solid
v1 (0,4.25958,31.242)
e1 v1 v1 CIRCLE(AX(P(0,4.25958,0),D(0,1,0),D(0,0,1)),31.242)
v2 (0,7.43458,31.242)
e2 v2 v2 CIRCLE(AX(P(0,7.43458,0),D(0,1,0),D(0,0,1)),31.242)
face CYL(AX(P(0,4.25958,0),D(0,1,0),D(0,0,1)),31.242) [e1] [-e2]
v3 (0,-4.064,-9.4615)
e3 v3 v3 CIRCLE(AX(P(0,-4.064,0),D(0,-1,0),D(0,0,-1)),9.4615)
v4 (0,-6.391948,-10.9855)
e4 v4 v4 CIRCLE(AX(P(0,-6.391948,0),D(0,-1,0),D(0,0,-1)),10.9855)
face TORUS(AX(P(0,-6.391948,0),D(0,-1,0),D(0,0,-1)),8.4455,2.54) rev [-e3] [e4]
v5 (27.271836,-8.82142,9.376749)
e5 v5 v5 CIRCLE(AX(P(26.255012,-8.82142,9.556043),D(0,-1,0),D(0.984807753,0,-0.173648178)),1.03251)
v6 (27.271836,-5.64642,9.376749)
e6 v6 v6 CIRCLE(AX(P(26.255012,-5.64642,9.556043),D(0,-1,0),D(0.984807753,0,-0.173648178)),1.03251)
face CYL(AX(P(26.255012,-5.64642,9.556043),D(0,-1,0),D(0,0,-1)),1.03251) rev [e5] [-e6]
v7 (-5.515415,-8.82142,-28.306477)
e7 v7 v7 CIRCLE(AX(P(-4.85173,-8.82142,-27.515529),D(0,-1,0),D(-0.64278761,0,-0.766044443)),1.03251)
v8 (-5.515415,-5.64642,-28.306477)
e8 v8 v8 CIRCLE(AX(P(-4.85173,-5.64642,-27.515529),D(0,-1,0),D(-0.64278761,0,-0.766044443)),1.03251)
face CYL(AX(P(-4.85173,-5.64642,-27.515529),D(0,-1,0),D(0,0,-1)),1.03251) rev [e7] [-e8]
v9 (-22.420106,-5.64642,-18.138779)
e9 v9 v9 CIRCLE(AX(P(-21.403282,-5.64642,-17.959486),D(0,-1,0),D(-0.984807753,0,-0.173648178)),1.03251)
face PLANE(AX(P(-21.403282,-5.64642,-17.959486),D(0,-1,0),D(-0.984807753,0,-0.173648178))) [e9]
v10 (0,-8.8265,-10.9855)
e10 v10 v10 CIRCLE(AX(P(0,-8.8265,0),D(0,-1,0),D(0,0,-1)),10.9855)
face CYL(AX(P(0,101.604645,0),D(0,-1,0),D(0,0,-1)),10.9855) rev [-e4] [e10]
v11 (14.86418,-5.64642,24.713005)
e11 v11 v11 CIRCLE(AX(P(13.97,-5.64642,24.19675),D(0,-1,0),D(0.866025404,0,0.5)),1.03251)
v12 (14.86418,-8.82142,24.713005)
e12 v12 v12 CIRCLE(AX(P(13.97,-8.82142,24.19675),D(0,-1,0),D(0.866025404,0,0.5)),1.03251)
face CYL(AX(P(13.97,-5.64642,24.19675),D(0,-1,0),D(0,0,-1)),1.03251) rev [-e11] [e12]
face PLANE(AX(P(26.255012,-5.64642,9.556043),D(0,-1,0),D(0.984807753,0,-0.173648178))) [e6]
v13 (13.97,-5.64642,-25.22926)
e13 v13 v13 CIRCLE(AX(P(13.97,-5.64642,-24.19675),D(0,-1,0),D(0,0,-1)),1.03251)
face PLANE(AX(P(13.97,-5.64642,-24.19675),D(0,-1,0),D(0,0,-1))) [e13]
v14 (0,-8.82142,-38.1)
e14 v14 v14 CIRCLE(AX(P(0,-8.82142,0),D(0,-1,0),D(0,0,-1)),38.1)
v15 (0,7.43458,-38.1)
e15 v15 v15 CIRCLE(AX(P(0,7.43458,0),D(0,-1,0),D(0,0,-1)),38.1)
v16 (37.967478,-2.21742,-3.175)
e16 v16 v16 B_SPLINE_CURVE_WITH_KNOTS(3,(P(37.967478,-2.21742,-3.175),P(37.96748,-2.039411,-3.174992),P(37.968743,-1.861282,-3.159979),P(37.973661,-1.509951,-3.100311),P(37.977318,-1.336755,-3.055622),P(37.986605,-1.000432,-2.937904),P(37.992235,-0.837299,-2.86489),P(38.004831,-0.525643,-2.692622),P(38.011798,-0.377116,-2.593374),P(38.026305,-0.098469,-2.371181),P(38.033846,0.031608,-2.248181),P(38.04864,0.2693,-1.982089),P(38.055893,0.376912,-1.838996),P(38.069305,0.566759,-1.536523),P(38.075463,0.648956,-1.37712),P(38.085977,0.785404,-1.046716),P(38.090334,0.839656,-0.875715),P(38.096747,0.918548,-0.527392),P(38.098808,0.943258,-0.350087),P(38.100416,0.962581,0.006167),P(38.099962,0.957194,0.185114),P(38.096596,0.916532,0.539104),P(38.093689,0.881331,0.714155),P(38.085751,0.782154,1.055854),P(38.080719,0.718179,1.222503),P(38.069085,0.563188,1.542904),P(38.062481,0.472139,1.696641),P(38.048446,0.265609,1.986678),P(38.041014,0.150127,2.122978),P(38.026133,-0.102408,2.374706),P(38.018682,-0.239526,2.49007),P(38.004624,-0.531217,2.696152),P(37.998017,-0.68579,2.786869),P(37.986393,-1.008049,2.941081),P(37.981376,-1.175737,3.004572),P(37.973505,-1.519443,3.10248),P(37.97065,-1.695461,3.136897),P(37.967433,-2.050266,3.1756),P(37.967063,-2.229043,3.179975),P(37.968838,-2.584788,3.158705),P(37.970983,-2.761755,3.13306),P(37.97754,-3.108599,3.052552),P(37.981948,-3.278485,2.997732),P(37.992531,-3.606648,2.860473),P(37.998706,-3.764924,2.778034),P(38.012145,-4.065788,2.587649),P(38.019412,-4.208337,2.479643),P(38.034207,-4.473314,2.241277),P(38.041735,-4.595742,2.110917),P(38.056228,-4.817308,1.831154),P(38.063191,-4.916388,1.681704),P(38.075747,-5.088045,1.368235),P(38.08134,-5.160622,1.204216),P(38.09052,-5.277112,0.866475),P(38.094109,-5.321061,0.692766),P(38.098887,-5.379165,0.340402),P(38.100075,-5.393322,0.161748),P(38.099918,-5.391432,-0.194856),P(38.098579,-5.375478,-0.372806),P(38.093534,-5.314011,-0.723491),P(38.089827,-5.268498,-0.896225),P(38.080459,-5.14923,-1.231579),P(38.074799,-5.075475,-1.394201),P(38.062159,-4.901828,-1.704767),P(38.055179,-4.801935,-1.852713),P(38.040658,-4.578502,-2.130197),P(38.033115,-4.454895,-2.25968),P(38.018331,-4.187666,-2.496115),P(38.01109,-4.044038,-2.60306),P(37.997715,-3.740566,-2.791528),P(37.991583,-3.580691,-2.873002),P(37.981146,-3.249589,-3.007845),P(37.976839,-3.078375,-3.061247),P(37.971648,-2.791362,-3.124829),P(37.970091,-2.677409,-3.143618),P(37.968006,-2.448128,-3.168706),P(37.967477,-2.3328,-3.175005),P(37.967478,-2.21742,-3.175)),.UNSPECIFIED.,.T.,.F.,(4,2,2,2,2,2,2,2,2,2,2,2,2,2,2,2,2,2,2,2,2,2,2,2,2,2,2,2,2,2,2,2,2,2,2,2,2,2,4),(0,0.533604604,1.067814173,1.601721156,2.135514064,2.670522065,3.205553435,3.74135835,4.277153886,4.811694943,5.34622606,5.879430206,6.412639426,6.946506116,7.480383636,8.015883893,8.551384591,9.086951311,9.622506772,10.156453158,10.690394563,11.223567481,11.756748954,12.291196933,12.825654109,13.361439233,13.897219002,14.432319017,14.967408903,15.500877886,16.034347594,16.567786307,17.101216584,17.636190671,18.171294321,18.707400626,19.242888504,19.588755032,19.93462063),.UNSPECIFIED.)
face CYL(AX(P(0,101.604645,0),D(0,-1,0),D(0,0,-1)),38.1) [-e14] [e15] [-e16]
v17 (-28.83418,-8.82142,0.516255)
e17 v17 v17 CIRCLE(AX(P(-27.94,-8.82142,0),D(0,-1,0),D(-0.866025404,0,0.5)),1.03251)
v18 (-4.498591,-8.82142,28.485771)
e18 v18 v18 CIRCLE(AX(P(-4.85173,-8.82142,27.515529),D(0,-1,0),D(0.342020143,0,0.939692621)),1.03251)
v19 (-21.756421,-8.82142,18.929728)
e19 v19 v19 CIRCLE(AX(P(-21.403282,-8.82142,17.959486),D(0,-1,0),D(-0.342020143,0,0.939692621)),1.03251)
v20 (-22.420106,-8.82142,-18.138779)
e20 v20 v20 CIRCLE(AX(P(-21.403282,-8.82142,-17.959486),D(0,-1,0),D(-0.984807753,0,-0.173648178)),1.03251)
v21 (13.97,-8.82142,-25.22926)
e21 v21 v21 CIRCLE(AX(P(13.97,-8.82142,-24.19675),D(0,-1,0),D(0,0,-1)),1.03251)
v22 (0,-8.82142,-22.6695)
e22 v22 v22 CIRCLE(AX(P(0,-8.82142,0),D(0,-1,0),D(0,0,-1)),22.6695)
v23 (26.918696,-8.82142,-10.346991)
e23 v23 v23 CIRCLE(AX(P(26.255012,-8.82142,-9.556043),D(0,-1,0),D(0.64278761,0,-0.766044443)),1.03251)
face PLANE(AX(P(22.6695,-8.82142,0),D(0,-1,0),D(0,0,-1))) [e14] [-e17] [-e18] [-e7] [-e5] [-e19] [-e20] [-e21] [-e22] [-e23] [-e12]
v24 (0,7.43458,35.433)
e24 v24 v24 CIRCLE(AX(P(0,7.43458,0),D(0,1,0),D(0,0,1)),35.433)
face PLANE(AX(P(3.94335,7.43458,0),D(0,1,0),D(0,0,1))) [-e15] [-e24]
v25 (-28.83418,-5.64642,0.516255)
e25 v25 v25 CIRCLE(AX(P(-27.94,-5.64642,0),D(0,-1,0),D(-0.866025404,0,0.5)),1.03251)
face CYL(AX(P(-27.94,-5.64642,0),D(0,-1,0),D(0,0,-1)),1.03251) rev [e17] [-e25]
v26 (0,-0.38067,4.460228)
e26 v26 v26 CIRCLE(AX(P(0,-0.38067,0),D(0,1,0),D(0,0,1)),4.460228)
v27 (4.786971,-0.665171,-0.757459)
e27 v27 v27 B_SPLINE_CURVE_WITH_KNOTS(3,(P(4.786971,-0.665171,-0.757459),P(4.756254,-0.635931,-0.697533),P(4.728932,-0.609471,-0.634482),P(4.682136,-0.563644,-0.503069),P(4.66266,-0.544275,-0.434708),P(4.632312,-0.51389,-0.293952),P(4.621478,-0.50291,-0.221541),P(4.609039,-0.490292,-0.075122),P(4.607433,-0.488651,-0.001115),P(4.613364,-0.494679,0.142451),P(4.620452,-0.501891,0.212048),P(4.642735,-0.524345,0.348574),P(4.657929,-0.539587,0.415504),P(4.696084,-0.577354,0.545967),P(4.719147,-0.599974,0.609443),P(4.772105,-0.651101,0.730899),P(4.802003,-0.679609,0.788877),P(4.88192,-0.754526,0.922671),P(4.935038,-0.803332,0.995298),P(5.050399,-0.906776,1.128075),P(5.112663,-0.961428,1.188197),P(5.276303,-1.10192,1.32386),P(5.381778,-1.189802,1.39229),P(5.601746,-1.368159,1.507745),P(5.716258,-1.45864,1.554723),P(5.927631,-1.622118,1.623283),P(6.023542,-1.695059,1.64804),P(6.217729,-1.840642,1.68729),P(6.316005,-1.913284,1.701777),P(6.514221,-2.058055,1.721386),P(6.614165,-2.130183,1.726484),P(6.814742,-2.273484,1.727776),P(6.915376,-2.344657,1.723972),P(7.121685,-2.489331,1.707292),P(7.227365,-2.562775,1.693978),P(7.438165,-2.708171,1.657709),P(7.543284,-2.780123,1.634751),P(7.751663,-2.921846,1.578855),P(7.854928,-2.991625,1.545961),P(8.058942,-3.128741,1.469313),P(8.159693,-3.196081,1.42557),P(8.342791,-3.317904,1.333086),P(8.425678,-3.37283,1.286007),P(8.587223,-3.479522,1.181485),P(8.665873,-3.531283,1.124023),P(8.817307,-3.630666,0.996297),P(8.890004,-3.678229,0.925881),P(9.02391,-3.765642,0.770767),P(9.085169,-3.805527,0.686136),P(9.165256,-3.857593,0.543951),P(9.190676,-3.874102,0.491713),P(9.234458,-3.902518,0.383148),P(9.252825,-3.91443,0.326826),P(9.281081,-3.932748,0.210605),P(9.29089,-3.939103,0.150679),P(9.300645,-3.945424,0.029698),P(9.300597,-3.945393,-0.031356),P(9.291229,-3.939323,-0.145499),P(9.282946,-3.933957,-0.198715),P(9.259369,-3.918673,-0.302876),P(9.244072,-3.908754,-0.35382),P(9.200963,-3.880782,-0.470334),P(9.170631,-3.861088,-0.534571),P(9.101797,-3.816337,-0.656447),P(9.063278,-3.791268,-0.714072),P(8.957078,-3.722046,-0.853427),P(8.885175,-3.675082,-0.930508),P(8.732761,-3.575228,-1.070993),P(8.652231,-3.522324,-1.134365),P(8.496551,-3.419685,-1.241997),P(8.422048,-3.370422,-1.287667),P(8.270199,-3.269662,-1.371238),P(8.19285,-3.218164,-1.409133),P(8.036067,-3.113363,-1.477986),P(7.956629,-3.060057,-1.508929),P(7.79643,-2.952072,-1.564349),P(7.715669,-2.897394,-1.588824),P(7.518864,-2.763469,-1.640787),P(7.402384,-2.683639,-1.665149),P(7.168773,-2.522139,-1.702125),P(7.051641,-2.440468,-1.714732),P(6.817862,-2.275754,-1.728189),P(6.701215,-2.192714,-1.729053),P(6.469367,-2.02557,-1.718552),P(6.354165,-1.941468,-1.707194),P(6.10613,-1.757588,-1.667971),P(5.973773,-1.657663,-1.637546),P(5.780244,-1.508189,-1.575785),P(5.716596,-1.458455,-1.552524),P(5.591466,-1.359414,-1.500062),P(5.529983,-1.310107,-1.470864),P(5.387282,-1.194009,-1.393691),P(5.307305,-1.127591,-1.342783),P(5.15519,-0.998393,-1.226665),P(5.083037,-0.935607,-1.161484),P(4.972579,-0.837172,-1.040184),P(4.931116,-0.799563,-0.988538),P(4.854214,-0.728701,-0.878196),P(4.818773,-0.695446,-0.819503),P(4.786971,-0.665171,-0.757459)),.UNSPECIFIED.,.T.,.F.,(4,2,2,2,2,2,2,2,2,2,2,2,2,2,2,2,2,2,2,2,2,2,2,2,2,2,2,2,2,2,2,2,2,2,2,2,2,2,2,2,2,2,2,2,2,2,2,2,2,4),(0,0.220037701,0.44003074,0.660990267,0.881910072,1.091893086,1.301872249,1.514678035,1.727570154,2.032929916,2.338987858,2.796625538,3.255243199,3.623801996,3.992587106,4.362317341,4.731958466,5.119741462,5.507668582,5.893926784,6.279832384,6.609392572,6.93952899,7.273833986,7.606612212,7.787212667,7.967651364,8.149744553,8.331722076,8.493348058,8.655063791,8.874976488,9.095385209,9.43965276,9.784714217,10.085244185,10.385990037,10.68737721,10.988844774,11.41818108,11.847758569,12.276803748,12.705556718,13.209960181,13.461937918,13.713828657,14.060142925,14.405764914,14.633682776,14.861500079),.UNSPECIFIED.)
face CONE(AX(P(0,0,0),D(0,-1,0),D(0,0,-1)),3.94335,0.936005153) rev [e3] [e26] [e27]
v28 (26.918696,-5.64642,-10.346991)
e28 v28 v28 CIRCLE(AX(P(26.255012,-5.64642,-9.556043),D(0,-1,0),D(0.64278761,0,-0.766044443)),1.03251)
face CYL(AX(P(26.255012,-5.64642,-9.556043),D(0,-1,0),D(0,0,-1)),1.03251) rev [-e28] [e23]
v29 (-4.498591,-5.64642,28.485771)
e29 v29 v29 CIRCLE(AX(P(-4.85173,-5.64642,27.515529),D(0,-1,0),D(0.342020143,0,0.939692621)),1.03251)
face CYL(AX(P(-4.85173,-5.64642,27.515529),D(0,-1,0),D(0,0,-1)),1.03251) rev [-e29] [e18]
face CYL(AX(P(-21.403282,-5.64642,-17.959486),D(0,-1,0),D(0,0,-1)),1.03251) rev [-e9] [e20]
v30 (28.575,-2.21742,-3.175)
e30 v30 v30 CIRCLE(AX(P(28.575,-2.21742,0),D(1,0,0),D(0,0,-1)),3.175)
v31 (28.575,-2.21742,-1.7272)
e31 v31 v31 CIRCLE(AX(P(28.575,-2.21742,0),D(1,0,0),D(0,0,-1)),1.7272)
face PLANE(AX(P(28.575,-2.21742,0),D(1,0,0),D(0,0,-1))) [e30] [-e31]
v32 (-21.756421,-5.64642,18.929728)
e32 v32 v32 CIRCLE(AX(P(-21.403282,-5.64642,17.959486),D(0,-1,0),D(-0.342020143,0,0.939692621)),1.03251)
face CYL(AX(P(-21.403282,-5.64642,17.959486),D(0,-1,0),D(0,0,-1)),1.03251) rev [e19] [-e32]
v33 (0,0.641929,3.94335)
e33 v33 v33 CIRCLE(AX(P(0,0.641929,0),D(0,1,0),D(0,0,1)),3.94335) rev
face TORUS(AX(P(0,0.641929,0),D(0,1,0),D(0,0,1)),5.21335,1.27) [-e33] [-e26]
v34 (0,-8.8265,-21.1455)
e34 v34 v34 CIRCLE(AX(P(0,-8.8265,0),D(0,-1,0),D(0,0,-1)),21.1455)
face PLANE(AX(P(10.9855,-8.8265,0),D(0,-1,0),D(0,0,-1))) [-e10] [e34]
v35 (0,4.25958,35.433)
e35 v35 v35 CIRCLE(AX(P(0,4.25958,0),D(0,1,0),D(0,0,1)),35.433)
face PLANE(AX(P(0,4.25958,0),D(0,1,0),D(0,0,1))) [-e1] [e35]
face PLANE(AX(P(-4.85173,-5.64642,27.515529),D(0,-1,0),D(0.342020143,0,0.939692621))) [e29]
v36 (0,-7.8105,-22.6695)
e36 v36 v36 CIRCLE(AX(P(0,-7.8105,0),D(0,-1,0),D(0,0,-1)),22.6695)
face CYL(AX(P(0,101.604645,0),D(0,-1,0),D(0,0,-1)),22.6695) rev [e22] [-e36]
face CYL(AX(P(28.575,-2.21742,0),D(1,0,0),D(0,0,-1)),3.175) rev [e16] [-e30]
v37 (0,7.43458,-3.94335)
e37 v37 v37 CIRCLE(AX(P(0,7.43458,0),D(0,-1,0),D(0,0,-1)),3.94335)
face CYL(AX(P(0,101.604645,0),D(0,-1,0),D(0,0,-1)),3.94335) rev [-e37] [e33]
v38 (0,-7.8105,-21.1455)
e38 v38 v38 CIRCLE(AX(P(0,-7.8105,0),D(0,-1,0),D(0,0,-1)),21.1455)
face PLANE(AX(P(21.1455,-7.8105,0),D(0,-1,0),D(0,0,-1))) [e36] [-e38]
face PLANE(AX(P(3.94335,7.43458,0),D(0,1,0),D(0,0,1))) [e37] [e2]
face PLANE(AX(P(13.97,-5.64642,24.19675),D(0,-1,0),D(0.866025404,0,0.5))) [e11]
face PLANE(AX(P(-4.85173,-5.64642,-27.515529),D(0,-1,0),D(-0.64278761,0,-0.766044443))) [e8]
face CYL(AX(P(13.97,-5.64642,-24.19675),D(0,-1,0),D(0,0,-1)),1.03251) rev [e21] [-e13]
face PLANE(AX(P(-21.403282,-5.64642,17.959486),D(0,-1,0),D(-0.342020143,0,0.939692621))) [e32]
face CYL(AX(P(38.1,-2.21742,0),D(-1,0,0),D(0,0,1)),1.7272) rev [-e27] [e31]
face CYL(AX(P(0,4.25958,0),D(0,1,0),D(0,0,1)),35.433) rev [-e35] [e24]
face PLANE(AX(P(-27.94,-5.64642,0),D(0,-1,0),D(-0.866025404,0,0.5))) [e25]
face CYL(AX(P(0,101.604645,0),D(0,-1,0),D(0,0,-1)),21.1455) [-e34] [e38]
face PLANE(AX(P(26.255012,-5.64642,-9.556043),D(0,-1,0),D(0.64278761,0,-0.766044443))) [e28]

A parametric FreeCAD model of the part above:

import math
import FreeCAD as App
import Part
import Sketcher
Q = App.Units.Quantity


def edges_at(feature, points):
    """Names of the edges that pass closest to the given points."""
    edges = feature.Shape.Edges
    near = lambda p: min(range(len(edges)), key=lambda i: edges[i].distToShape(Part.Vertex(*p))[0])
    return sorted({f"Edge{near(p) + 1}" for p in points})

doc = App.newDocument("Part")
body = doc.addObject("PartDesign::Body", "Body")

# Sketch on XY plane
sketch1 = doc.addObject("Sketcher::SketchObject", "Sketch")
body.addObject(sketch1)
sketch1.AttachmentSupport = (doc.XY_Plane, [""])
sketch1.MapMode = "FlatFace"
sketch1.addGeometry(Part.LineSegment(App.Vector(38.1, 7.4, 0), App.Vector(3.9, 7.4, 0)), False)
sketch1.addGeometry(Part.LineSegment(App.Vector(3.9, 7.4, 0), App.Vector(3.9, 0, 0)), False)
sketch1.addGeometry(Part.LineSegment(App.Vector(3.9, 0, 0), App.Vector(9.5, -4.1, 0)), False)
sketch1.addGeometry(Part.ArcOfCircle(Part.Circle(App.Vector(8.4, -6.4, 0), App.Vector(0, 0, 1), 2.5), math.radians(0), math.radians(66)), False)
sketch1.addGeometry(Part.LineSegment(App.Vector(11, -6.4, 0), App.Vector(11, -8.8, 0)), False)
sketch1.addGeometry(Part.LineSegment(App.Vector(11, -8.8, 0), App.Vector(21.1, -8.8, 0)), False)
sketch1.addGeometry(Part.LineSegment(App.Vector(21.1, -8.8, 0), App.Vector(21.1, -7.8, 0)), False)
sketch1.addGeometry(Part.LineSegment(App.Vector(21.1, -7.8, 0), App.Vector(22.7, -7.8, 0)), False)
sketch1.addGeometry(Part.LineSegment(App.Vector(22.7, -7.8, 0), App.Vector(22.7, -8.8, 0)), False)
sketch1.addGeometry(Part.LineSegment(App.Vector(22.7, -8.8, 0), App.Vector(38.1, -8.8, 0)), False)
sketch1.addGeometry(Part.LineSegment(App.Vector(38.1, -8.8, 0), App.Vector(38.1, 7.4, 0)), False)
sketch1.addConstraint(Sketcher.Constraint("Coincident", 0, 2, 1, 1))
sketch1.addConstraint(Sketcher.Constraint("Coincident", 1, 2, 2, 1))
sketch1.addConstraint(Sketcher.Constraint("Coincident", 2, 2, 3, 2))
sketch1.addConstraint(Sketcher.Constraint("Tangent", 3, 1, 4, 1))
sketch1.addConstraint(Sketcher.Constraint("Coincident", 4, 2, 5, 1))
sketch1.addConstraint(Sketcher.Constraint("Coincident", 5, 2, 6, 1))
sketch1.addConstraint(Sketcher.Constraint("Coincident", 6, 2, 7, 1))
sketch1.addConstraint(Sketcher.Constraint("Coincident", 7, 2, 8, 1))
sketch1.addConstraint(Sketcher.Constraint("Coincident", 8, 2, 9, 1))
sketch1.addConstraint(Sketcher.Constraint("Coincident", 9, 2, 10, 1))
sketch1.addConstraint(Sketcher.Constraint("Coincident", 10, 2, 0, 1))
sketch1.addConstraint(Sketcher.Constraint("Horizontal", 0))
sketch1.addConstraint(Sketcher.Constraint("Vertical", 1))
sketch1.addConstraint(Sketcher.Constraint("Vertical", 4))
sketch1.addConstraint(Sketcher.Constraint("Horizontal", 5))
sketch1.addConstraint(Sketcher.Constraint("Vertical", 6))
sketch1.addConstraint(Sketcher.Constraint("Horizontal", 7))
sketch1.addConstraint(Sketcher.Constraint("Vertical", 8))
sketch1.addConstraint(Sketcher.Constraint("Horizontal", 9))
sketch1.addConstraint(Sketcher.Constraint("Vertical", 10))
sketch1.addConstraint(Sketcher.Constraint("PointOnObject", 1, 2, -1))
sketch1.addConstraint(Sketcher.Constraint("Radius", 3, Q("0.1 in")))
sketch1.addConstraint(Sketcher.Constraint("DistanceX", 5, 1, 5, 2, Q("0.4 in")))
sketch1.addConstraint(Sketcher.Constraint("DistanceX", 7, 1, 7, 2, Q("0.06 in")))
sketch1.addConstraint(Sketcher.Constraint("DistanceY", 6, 1, 6, 2, Q("0.04 in")))
sketch1.addConstraint(Sketcher.Constraint("DistanceY", 10, 1, 10, 2, Q("0.64 in")))
sketch1.addConstraint(Sketcher.Constraint("DistanceX", -1, 1, 9, 2, Q("1.5 in")))
sketch1.addConstraint(Sketcher.Constraint("DistanceY", 2, 2, -1, 1, Q("0.16 in")))
sketch1.addConstraint(Sketcher.Constraint("DistanceX", 3, 3, 2, 2, Q("0.04 in")))
sketch1.addConstraint(Sketcher.Constraint("DistanceX", 9, 1, 9, 2, Q("0.6075 in")))
sketch1.addConstraint(Sketcher.Constraint("DistanceY", 1, 2, 1, 1, Q("0.2927 in")))
sketch1.addConstraint(Sketcher.Constraint("DistanceY", 8, 2, 8, 1, Q("0.0398 in")))
sketch1.addConstraint(Sketcher.Constraint("DistanceX", 0, 2, 0, 1, 34.15665))
revolution = doc.addObject("PartDesign::Revolution", "Revolution")
body.addObject(revolution)
revolution.Profile = sketch1
revolution.ReferenceAxis = (sketch1, ["V_Axis"])
revolution.Angle = 360

# Sketch on YZ plane
sketch2 = doc.addObject("Sketcher::SketchObject", "Sketch001")
body.addObject(sketch2)
sketch2.AttachmentSupport = (doc.YZ_Plane, [""])
sketch2.MapMode = "FlatFace"
sketch2.addGeometry(Part.Circle(App.Vector(-2.2, 0, 0), App.Vector(0, 0, 1), 1.7), False)
sketch2.addConstraint(Sketcher.Constraint("PointOnObject", 0, 3, -1))
sketch2.addConstraint(Sketcher.Constraint("Diameter", 0, Q("0.136 in")))
sketch2.addConstraint(Sketcher.Constraint("DistanceX", 0, 3, -1, 1, Q("0.0873 in")))
pocket1 = doc.addObject("PartDesign::Pocket", "Pocket")
body.addObject(pocket1)
pocket1.Profile = sketch2
pocket1.Type = "ThroughAll"
pocket1.Reversed = True

# Sketch on XZ plane
sketch3 = doc.addObject("Sketcher::SketchObject", "Sketch002")
body.addObject(sketch3)
sketch3.AttachmentSupport = (doc.XZ_Plane, [""])
sketch3.MapMode = "FlatFace"
sketch3.AttachmentOffset = App.Placement(App.Vector(0, 0, -0.2927 * 25.4), App.Rotation())
sketch3.addGeometry(Part.Circle(App.Vector(0, 0, 0), App.Vector(0, 0, 1), 35), False)
sketch3.addGeometry(Part.Circle(App.Vector(0, 0, 0), App.Vector(0, 0, 1), 31), False)
sketch3.addConstraint(Sketcher.Constraint("Coincident", 0, 3, -1, 1))
sketch3.addConstraint(Sketcher.Constraint("Coincident", 1, 3, -1, 1))
sketch3.addConstraint(Sketcher.Constraint("Diameter", 0, Q("2.79 in")))
sketch3.addConstraint(Sketcher.Constraint("Diameter", 1, Q("2.46 in")))
pocket2 = doc.addObject("PartDesign::Pocket", "Pocket001")
body.addObject(pocket2)
pocket2.Profile = sketch3
pocket2.Length = Q("0.125 in")
pocket2.Reversed = True

# Sketch on XZ plane
sketch4 = doc.addObject("Sketcher::SketchObject", "Sketch003")
body.addObject(sketch4)
sketch4.AttachmentSupport = (doc.XZ_Plane, [""])
sketch4.MapMode = "FlatFace"
sketch4.AttachmentOffset = App.Placement(App.Vector(0, 0, 0.3473 * 25.4), App.Rotation())
sketch4.addGeometry(Part.Circle(App.Vector(14, -24.2, 0), App.Vector(0, 0, 1), 1), False)
sketch4.addConstraint(Sketcher.Constraint("Diameter", 0, Q("0.0813 in")))
sketch4.addConstraint(Sketcher.Constraint("DistanceX", -1, 1, 0, 3, Q("0.55 in")))
sketch4.addConstraint(Sketcher.Constraint("DistanceY", 0, 3, -1, 1, 24.19675))
pocket3 = doc.addObject("PartDesign::Pocket", "Pocket002")
body.addObject(pocket3)
pocket3.Profile = sketch4
pocket3.Length = Q("0.125 in")
doc.recompute()

polarpattern = doc.addObject("PartDesign::PolarPattern", "PolarPattern")
body.addObject(polarpattern)
polarpattern.Originals = [pocket3]
polarpattern.Axis = (doc.Y_Axis, [""])
polarpattern.Angle = 360
polarpattern.Occurrences = 9
body.Tip = polarpattern

# Sketch on YZ plane
sketch5 = doc.addObject("Sketcher::SketchObject", "Sketch004")
body.addObject(sketch5)
sketch5.AttachmentSupport = (doc.YZ_Plane, [""])
sketch5.MapMode = "FlatFace"
sketch5.AttachmentOffset = App.Placement(App.Vector(0, 0, 1.5 * 25.4), App.Rotation())
sketch5.addGeometry(Part.Circle(App.Vector(-2.2, 0, 0), App.Vector(0, 0, 1), 3.2), False)
sketch5.addConstraint(Sketcher.Constraint("PointOnObject", 0, 3, -1))
sketch5.addConstraint(Sketcher.Constraint("Diameter", 0, Q("0.25 in")))
sketch5.addConstraint(Sketcher.Constraint("DistanceX", 0, 3, -1, 1, Q("0.0873 in")))
pocket4 = doc.addObject("PartDesign::Pocket", "Pocket003")
body.addObject(pocket4)
pocket4.Profile = sketch5
pocket4.Length = Q("0.375 in")
doc.recompute()

fillet = doc.addObject("PartDesign::Fillet", "Fillet")
body.addObject(fillet)
fillet.Base = (pocket4, edges_at(pocket4, [(-3.943, 0, 0)]))
fillet.Radius = Q("0.05 in")

doc.recompute()
